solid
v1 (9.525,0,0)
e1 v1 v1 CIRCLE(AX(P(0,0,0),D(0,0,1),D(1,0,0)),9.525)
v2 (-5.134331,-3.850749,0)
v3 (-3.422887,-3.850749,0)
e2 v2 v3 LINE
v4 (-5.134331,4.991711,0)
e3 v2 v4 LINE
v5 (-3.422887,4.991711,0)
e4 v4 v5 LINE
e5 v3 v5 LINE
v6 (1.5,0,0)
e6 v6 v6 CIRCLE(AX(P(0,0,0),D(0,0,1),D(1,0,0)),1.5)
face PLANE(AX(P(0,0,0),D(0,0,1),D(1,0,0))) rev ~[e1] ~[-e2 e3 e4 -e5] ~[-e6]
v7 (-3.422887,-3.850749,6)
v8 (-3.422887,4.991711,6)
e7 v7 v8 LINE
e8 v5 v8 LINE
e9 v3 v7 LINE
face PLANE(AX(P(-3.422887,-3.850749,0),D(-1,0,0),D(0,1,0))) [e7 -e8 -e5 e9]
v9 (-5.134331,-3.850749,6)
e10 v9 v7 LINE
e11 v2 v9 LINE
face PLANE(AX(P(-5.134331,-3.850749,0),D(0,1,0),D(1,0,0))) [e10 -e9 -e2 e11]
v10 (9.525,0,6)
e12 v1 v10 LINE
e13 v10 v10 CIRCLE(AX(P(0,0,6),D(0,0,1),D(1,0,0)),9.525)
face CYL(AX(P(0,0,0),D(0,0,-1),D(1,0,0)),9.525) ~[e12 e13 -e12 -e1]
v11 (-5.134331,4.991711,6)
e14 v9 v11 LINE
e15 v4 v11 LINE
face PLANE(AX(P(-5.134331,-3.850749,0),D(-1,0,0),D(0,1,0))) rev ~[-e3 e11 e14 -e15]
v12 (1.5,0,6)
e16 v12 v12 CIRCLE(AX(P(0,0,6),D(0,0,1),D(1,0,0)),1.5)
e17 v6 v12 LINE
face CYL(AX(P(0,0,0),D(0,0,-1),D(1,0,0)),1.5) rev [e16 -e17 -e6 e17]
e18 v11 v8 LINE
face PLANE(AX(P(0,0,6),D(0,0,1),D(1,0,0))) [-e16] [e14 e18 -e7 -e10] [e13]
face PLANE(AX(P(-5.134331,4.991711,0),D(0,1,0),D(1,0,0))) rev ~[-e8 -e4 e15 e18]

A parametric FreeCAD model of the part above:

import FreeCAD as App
import Part
import Sketcher

V = App.Vector


def add_polygon(sketch, points):
    """Adds a closed chain of lines whose ends are joined by coincident constraints."""
    first, n = sketch.GeometryCount, len(points)
    for a, b in zip(points, points[1:] + points[:1]):
        sketch.addGeometry(Part.LineSegment(App.Vector(*a, 0), App.Vector(*b, 0)), False)
    for i in range(n):
        sketch.addConstraint(Sketcher.Constraint("Coincident", first + i, 2, first + (i + 1) % n, 1))

doc = App.newDocument("Part")
body = doc.addObject("PartDesign::Body", "Body")

# Sketch on XY plane
sketch1 = body.newObject("Sketcher::SketchObject", "Sketch")
sketch1.AttachmentSupport = (doc.getObject("XY_Plane"), [""])
sketch1.MapMode = "FlatFace"
sketch1.addGeometry(Part.Circle(V(0, 0, 0), V(0, 0, 1), 9.5), False)  # 0
sketch1.addGeometry(Part.Circle(V(0, 0, 0), V(0, 0, 1), 1.5), False)  # 1
add_polygon(sketch1, [(-3.4, -3.9), (-5.1, -3.9), (-5.1, 5), (-3.4, 5)])  # lines 2-5
sketch1.addConstraint([
    Sketcher.Constraint("Horizontal", 2),
    Sketcher.Constraint("Vertical", 3),
    Sketcher.Constraint("Horizontal", 4),
    Sketcher.Constraint("Vertical", 5),
    Sketcher.Constraint("Coincident", 0, 3, -1, 1),
    Sketcher.Constraint("Coincident", 1, 3, -1, 1),
    Sketcher.Constraint("Diameter", 1, 3.0),
    Sketcher.Constraint("Diameter", 0, 19.05),
    Sketcher.Constraint("DistanceY", 3, 1, 3, 2, 8.84246),
    Sketcher.Constraint("DistanceX", 2, 2, 2, 1, 1.711444),
    Sketcher.Constraint("DistanceX", 2, 2, -1, 1, 5.134331),
    Sketcher.Constraint("DistanceY", 2, 2, -1, 1, 3.850749),
])
pad1 = body.newObject("PartDesign::Pad", "Pad")
pad1.Profile = sketch1
pad1.Length = 6

doc.recompute()
